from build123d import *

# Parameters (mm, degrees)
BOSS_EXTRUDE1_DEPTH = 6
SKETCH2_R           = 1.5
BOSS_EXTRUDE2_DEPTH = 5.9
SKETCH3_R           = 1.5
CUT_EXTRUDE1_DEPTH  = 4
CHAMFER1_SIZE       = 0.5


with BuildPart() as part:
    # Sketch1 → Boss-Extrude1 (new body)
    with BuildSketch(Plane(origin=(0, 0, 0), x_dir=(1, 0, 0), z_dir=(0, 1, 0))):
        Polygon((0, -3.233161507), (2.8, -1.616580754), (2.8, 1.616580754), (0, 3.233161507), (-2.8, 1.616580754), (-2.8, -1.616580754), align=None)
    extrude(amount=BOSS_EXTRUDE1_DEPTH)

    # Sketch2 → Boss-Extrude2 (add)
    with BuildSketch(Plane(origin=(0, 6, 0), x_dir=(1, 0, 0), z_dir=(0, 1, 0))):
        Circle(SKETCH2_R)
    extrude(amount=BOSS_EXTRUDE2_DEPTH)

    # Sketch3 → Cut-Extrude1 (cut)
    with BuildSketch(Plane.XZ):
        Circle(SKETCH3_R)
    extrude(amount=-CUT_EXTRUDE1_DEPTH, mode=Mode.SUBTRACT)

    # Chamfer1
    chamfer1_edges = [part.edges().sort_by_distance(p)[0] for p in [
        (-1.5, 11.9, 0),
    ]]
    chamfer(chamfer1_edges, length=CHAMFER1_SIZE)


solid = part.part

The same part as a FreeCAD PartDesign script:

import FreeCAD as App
import Part
import Sketcher
from FreeCAD import Vector
Q = App.Units.Quantity


def edges_at(feature, points):
    """Names of the edges that pass closest to the given points."""
    edges = feature.Shape.Edges
    near = lambda p: min(range(len(edges)), key=lambda i: edges[i].distToShape(Part.Vertex(*p))[0])
    return sorted({f"Edge{near(p) + 1}" for p in points})

doc = App.newDocument("Part")
params = doc.addObject("Spreadsheet::Sheet", "Params")
for row, (alias, value) in enumerate([
    ("pad1_length", "6 mm"),
    ("sketch2_diameter", "3 mm"),
    ("pad2_length", "5.9 mm"),
    ("sketch3_diameter", "3 mm"),
    ("pocket1_length", "4 mm"),
    ("chamfer_size", "0.5 mm"),
], start=1):
    params.set(f"A{row}", alias)
    params.set(f"B{row}", "=" + value)
    params.setAlias(f"B{row}", alias)

body = doc.addObject("PartDesign::Body", "Body")

sketch1 = body.newObject("Sketcher::SketchObject", "Sketch")
sketch1.AttachmentSupport = (doc.getObject("XZ_Plane"), [""])
sketch1.MapMode = "FlatFace"
sketch1.addGeometry([
    Part.LineSegment(Vector(0, 3.2, 0), Vector(2.8, 1.6, 0)),
    Part.LineSegment(Vector(2.8, 1.6, 0), Vector(2.8, -1.6, 0)),
    Part.LineSegment(Vector(2.8, -1.6, 0), Vector(0, -3.2, 0)),
    Part.LineSegment(Vector(0, -3.2, 0), Vector(-2.8, -1.6, 0)),
    Part.LineSegment(Vector(-2.8, -1.6, 0), Vector(-2.8, 1.6, 0)),
    Part.LineSegment(Vector(-2.8, 1.6, 0), Vector(0, 3.2, 0)),
], False)
sketch1.addConstraint([
    Sketcher.Constraint("Coincident", 0, 2, 1, 1),
    Sketcher.Constraint("Coincident", 1, 2, 2, 1),
    Sketcher.Constraint("Coincident", 2, 2, 3, 1),
    Sketcher.Constraint("Coincident", 3, 2, 4, 1),
    Sketcher.Constraint("Coincident", 4, 2, 5, 1),
    Sketcher.Constraint("Coincident", 5, 2, 0, 1),
    Sketcher.Constraint("Vertical", 1),
    Sketcher.Constraint("Vertical", 4),
    Sketcher.Constraint("Symmetric", 0, 2, 3, 2, -1, 1),
    Sketcher.Constraint("Symmetric", 2, 2, 5, 2, -1, 1),
    Sketcher.Constraint("PointOnObject", 2, 2, -2),
    Sketcher.Constraint("Parallel", 2, 5),
    Sketcher.Constraint("Horizontal", 1, 2, 3, 2),
    Sketcher.Constraint("Angle", 0, Q("-30 deg")),
    Sketcher.Constraint("DistanceX", -1, 1, 0, 2, Q("2.8 mm")),
    Sketcher.Constraint("DistanceY", 1, 2, 1, 1, Q("3.233162 mm")),
])
pad1 = body.newObject("PartDesign::Pad", "Pad")
pad1.Profile = sketch1
pad1.setExpression("Length", "Params.pad1_length")
pad1.Reversed = True

sketch2 = body.newObject("Sketcher::SketchObject", "Sketch001")
sketch2.AttachmentSupport = (doc.getObject("XZ_Plane"), [""])
sketch2.MapMode = "FlatFace"
sketch2.AttachmentOffset = App.Placement(Vector(0, 0, -6), App.Rotation())
sketch2.addGeometry(Part.Circle(Vector(0, 0, 0), Vector(0, 0, 1), 1.5), False)
sketch2.addConstraint([
    Sketcher.Constraint("Coincident", 0, 3, -1, 1),
    Sketcher.Constraint("Diameter", 0, Q("3 mm")),
])
sketch2.setExpression("Constraints[1]", "Params.sketch2_diameter")
pad2 = body.newObject("PartDesign::Pad", "Pad001")
pad2.Profile = sketch2
pad2.setExpression("Length", "Params.pad2_length")
pad2.Reversed = True

sketch3 = body.newObject("Sketcher::SketchObject", "Sketch002")
sketch3.AttachmentSupport = (doc.getObject("XZ_Plane"), [""])
sketch3.MapMode = "FlatFace"
sketch3.addGeometry(Part.Circle(Vector(0, 0, 0), Vector(0, 0, 1), 1.5), False)
sketch3.addConstraint([
    Sketcher.Constraint("Coincident", 0, 3, -1, 1),
    Sketcher.Constraint("Diameter", 0, Q("3 mm")),
])
sketch3.setExpression("Constraints[1]", "Params.sketch3_diameter")
pocket1 = body.newObject("PartDesign::Pocket", "Pocket")
pocket1.Profile = sketch3
pocket1.setExpression("Length", "Params.pocket1_length")
doc.recompute()

chamfer = body.newObject("PartDesign::Chamfer", "Chamfer")
chamfer.Base = (pocket1, edges_at(pocket1, [(-1.5, 11.9, 0)]))
chamfer.setExpression("Size", "Params.chamfer_size")

doc.recompute()
